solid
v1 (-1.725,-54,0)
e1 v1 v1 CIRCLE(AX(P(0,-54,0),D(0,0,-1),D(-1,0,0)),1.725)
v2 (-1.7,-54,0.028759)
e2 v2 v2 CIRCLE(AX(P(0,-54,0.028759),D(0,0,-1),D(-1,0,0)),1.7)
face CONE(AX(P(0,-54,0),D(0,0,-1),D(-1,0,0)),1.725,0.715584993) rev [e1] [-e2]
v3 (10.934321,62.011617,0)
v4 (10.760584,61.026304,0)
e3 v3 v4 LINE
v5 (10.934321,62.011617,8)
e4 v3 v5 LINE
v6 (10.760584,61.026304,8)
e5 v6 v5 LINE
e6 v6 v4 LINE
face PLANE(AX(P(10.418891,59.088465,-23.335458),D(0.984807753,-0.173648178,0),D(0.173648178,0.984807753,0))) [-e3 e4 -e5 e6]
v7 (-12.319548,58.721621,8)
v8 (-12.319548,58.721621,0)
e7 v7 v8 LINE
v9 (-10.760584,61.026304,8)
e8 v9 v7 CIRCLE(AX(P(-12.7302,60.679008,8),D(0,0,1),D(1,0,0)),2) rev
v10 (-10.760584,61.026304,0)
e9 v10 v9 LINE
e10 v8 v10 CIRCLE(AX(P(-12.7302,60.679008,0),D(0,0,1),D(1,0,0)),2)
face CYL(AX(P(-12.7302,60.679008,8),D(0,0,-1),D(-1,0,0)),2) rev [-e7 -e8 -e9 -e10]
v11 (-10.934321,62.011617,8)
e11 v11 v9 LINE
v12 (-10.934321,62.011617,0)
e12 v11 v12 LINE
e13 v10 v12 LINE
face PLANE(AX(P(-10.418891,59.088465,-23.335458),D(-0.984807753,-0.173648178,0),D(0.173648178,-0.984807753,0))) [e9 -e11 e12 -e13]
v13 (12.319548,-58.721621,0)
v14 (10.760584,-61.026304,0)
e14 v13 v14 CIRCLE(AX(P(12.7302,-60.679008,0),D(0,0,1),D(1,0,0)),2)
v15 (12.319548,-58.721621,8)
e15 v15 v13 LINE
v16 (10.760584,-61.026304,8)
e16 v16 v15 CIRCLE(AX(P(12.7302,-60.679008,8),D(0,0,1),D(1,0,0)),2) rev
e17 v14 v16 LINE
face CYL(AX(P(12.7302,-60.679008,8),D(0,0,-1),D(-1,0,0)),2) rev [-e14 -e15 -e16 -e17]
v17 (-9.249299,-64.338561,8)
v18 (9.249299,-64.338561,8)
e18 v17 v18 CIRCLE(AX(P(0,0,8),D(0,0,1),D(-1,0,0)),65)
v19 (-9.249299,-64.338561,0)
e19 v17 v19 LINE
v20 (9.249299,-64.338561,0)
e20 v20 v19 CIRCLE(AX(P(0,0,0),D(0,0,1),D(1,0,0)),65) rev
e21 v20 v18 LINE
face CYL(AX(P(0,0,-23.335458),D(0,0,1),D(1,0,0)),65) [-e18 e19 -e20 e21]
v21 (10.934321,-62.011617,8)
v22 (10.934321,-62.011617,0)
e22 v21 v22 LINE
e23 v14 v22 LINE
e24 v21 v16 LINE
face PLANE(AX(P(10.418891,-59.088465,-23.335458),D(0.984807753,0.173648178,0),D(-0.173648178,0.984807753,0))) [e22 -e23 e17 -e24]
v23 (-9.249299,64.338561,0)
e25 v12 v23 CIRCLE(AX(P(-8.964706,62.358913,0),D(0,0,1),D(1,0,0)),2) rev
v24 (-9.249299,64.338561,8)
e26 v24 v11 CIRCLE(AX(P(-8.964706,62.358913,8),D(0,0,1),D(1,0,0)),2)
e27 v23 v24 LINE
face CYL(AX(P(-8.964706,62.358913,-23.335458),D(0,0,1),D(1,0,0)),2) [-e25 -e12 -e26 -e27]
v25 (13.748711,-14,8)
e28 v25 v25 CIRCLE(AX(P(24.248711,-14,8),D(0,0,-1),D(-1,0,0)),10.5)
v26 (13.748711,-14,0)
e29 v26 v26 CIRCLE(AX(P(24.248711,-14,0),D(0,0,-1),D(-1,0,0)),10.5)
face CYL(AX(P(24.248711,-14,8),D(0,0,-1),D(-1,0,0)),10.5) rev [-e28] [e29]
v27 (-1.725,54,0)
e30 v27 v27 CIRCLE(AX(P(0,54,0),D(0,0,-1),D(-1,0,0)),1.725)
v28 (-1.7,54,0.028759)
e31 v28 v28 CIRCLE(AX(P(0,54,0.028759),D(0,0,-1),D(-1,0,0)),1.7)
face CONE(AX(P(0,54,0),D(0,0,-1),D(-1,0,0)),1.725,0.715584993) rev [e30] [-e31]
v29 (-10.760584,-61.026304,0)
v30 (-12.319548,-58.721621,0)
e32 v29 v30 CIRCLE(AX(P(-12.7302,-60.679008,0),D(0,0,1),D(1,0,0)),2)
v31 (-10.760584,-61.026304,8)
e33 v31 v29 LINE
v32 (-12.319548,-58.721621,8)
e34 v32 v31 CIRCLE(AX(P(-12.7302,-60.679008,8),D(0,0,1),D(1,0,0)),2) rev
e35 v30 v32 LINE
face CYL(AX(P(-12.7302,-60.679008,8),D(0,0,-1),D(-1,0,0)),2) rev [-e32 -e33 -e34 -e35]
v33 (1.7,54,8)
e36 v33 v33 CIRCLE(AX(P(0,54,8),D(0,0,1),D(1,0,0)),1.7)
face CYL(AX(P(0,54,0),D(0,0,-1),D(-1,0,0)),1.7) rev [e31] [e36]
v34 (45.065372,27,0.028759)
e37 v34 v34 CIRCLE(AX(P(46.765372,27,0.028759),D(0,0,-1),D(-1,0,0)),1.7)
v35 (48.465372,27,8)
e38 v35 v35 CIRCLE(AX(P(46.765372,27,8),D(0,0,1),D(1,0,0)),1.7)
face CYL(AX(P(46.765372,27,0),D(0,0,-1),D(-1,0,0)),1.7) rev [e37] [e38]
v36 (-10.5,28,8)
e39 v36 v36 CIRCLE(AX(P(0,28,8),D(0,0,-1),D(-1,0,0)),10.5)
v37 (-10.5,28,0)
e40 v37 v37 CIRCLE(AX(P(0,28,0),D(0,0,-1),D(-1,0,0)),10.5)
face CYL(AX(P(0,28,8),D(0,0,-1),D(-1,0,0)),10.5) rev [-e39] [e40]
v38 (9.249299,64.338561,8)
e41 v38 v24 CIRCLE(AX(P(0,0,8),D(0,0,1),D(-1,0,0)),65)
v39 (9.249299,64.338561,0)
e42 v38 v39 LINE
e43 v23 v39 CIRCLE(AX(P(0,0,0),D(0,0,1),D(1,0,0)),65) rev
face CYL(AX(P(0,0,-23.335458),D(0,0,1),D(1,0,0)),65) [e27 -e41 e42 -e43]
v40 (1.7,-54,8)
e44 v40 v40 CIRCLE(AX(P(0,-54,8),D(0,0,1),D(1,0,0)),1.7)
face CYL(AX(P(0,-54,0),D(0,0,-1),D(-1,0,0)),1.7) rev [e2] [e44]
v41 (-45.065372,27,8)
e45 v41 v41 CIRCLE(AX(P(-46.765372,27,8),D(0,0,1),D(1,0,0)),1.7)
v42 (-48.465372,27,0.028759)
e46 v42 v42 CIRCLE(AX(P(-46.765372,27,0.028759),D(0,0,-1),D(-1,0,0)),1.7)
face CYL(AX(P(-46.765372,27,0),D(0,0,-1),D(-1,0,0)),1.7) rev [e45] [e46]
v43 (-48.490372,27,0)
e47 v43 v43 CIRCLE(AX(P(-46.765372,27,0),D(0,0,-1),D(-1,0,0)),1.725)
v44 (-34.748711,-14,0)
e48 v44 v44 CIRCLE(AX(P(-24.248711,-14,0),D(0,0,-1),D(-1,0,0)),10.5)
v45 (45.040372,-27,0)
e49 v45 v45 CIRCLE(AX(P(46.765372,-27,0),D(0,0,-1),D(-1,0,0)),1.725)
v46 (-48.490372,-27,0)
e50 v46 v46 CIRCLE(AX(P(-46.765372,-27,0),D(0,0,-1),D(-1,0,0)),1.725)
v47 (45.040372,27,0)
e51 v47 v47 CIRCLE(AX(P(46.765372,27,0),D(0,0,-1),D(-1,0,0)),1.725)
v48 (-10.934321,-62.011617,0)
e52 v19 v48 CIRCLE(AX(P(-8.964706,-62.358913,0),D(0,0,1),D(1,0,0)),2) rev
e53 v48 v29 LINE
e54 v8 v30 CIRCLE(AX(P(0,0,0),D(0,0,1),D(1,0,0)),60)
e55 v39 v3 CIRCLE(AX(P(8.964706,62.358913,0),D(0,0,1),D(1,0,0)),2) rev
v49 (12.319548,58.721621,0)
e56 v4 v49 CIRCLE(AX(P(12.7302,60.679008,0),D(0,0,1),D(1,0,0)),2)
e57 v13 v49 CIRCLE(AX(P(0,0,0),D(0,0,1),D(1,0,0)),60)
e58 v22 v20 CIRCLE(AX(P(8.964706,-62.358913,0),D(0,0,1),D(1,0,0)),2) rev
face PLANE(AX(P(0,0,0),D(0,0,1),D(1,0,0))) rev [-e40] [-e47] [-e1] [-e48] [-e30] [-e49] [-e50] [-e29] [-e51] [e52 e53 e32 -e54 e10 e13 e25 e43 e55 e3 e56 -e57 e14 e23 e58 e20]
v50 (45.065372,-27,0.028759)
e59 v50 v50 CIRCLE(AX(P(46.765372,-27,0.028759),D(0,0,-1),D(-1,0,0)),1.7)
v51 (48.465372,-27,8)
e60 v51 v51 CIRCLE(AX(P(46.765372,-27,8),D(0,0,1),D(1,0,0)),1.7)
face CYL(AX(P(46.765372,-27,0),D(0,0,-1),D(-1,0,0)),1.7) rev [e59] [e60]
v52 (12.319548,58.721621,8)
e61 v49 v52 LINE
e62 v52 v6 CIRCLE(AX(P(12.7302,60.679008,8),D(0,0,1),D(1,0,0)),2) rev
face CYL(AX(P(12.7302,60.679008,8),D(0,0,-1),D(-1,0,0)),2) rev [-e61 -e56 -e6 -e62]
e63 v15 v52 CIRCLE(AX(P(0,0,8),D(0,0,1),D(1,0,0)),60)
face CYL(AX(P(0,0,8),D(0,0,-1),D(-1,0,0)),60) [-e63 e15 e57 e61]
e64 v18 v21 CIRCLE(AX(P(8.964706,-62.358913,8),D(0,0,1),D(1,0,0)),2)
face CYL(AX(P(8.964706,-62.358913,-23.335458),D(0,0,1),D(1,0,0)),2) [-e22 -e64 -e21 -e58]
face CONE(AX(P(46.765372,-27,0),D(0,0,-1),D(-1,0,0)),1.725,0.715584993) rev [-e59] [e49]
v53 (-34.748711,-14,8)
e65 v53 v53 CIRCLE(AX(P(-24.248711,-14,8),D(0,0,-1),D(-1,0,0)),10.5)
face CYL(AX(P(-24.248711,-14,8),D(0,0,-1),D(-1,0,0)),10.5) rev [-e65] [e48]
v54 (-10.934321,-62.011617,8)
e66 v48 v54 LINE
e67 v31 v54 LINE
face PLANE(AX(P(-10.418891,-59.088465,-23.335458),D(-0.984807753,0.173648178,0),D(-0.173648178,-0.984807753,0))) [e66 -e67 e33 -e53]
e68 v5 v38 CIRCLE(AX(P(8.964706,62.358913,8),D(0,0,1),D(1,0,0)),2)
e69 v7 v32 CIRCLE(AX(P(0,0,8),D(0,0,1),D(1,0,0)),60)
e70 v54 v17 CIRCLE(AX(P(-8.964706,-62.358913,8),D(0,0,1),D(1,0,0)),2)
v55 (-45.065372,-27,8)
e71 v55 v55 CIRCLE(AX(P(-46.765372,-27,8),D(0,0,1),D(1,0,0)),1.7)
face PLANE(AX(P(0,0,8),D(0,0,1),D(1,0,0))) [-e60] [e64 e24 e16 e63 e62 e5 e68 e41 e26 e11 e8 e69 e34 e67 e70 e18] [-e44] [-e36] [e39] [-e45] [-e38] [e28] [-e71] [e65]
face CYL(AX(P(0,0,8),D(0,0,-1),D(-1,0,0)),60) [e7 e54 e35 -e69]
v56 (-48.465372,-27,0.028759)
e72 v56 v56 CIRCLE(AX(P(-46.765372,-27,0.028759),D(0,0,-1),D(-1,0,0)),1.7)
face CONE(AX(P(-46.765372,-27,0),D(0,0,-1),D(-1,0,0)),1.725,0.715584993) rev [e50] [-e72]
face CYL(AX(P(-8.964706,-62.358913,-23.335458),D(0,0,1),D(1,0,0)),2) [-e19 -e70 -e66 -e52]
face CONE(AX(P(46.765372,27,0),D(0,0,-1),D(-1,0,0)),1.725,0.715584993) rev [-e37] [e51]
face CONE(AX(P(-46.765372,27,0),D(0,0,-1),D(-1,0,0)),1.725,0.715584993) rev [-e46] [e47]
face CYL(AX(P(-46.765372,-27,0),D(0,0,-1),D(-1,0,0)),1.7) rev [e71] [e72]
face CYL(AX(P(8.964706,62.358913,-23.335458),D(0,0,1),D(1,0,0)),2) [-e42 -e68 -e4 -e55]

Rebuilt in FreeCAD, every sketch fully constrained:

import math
import FreeCAD as App
import Part
import Sketcher
from FreeCAD import Vector
Q = App.Units.Quantity


def edges_at(feature, points):
    """Names of the edges that pass closest to the given points."""
    edges = feature.Shape.Edges
    near = lambda p: min(range(len(edges)), key=lambda i: edges[i].distToShape(Part.Vertex(*p))[0])
    return sorted({f"Edge{near(p) + 1}" for p in points})

doc = App.newDocument("Part")
body = doc.addObject("PartDesign::Body", "Body")

sketch1 = body.newObject("Sketcher::SketchObject", "Sketch")
sketch1.AttachmentSupport = (doc.getObject("XY_Plane"), [""])
sketch1.MapMode = "FlatFace"
sketch1.addGeometry(Part.Circle(Vector(0, 0, 0), Vector(0, 0, 1), 60), False)
sketch1.addConstraint([
    Sketcher.Constraint("Coincident", 0, 3, -1, 1),
    Sketcher.Constraint("Diameter", 0, 120.0),
])
pad1 = body.newObject("PartDesign::Pad", "Pad")
pad1.Profile = sketch1
pad1.Length = 8

sketch2 = body.newObject("Sketcher::SketchObject", "Sketch001")
sketch2.AttachmentSupport = (doc.getObject("XY_Plane"), [""])
sketch2.MapMode = "FlatFace"
sketch2.addGeometry([
    Part.LineSegment(Vector(10.4, 59.1, 0), Vector(11.3, 64, 0)),
    Part.ArcOfCircle(Part.Circle(Vector(0, 0, 0), Vector(0, 0, 1), 65), math.radians(80), math.radians(100)),
    Part.LineSegment(Vector(-11.3, 64, 0), Vector(-10.4, 59.1, 0)),
    Part.ArcOfCircle(Part.Circle(Vector(0, 0, 0), Vector(0, 0, 1), 60), math.radians(80), math.radians(100)),
    Part.LineSegment(Vector(11.3, -64, 0), Vector(10.4, -59.1, 0)),
    Part.ArcOfCircle(Part.Circle(Vector(0, 0, 0), Vector(0, 0, 1), 60), math.radians(-100), math.radians(-80)),
    Part.LineSegment(Vector(-10.4, -59.1, 0), Vector(-11.3, -64, 0)),
    Part.ArcOfCircle(Part.Circle(Vector(0, 0, 0), Vector(0, 0, 1), 65), math.radians(-100), math.radians(-80)),
], False)
sketch2.addConstraint([
    Sketcher.Constraint("Coincident", 0, 2, 1, 1),
    Sketcher.Constraint("Coincident", 1, 2, 2, 1),
    Sketcher.Constraint("Coincident", 2, 2, 3, 2),
    Sketcher.Constraint("Coincident", 3, 1, 0, 1),
    Sketcher.Constraint("Coincident", 4, 2, 5, 2),
    Sketcher.Constraint("Coincident", 5, 1, 6, 1),
    Sketcher.Constraint("Coincident", 6, 2, 7, 1),
    Sketcher.Constraint("Coincident", 7, 2, 4, 1),
    Sketcher.Constraint("Coincident", 1, 3, -1, 1),
    Sketcher.Constraint("Coincident", 3, 3, -1, 1),
    Sketcher.Constraint("Coincident", 5, 3, -1, 1),
    Sketcher.Constraint("Coincident", 7, 3, -1, 1),
    Sketcher.Constraint("Equal", 3, 5),
    Sketcher.Constraint("Equal", 1, 7),
    Sketcher.Constraint("Parallel", 2, 4),
    Sketcher.Constraint("Parallel", 0, 6),
    Sketcher.Constraint("Horizontal", 0, 2, 1, 2),
    Sketcher.Constraint("Horizontal", 2, 2, 3, 1),
    Sketcher.Constraint("Horizontal", 4, 2, 5, 1),
    Sketcher.Constraint("Vertical", 3, 1, 4, 2),
    Sketcher.Constraint("Radius", 1, 65.0),
    Sketcher.Constraint("Radius", 3, 60.0),
    Sketcher.Constraint("Angle", 0, Q("80 deg")),
    Sketcher.Constraint("DistanceX", -1, 1, 0, 2, 11.287132),
])
pad2 = body.newObject("PartDesign::Pad", "Pad001")
pad2.Profile = sketch2
pad2.Length = 8
doc.recompute()

fillet = body.newObject("PartDesign::Fillet", "Fillet")
fillet.Base = (pad2, edges_at(pad2, [
    (-10.419, -59.088, 4),
    (10.419, -59.088, 4),
    (11.287, -64.013, 4),
    (-11.287, -64.013, 4),
    (10.419, 59.088, 4),
    (-10.419, 59.088, 4),
    (-11.287, 64.013, 4),
    (11.287, 64.013, 4),
]))
fillet.Radius = 2

sketch3 = body.newObject("Sketcher::SketchObject", "Sketch002")
sketch3.AttachmentSupport = (doc.getObject("XY_Plane"), [""])
sketch3.MapMode = "FlatFace"
sketch3.addGeometry([
    Part.Circle(Vector(0, 54, 0), Vector(0, 0, 1), 1.7),
    Part.Circle(Vector(-46.8, 27, 0), Vector(0, 0, 1), 1.7),
    Part.Circle(Vector(-46.8, -27, 0), Vector(0, 0, 1), 1.7),
    Part.Circle(Vector(0, -54, 0), Vector(0, 0, 1), 1.7),
    Part.Circle(Vector(46.8, -27, 0), Vector(0, 0, 1), 1.7),
    Part.Circle(Vector(46.8, 27, 0), Vector(0, 0, 1), 1.7),
], False)
sketch3.addConstraint([
    Sketcher.Constraint("Equal", 0, 1),
    Sketcher.Constraint("Equal", 1, 2),
    Sketcher.Constraint("Equal", 2, 3),
    Sketcher.Constraint("Equal", 3, 4),
    Sketcher.Constraint("Equal", 4, 5),
    Sketcher.Constraint("Symmetric", 0, 3, 3, 3, -1, 1),
    Sketcher.Constraint("Symmetric", 1, 3, 4, 3, -1, 1),
    Sketcher.Constraint("Symmetric", 2, 3, 5, 3, -1, 1),
    Sketcher.Constraint("Symmetric", 2, 3, 4, 3, -2),
    Sketcher.Constraint("PointOnObject", 0, 3, -2),
    Sketcher.Constraint("Diameter", 0, 3.4),
    Sketcher.Constraint("DistanceY", -1, 1, 0, 3, 54.0),
    Sketcher.Constraint("DistanceY", -1, 1, 1, 3, 27.0),
    Sketcher.Constraint("DistanceX", 1, 3, -1, 1, 46.765372),
])
doc.recompute()
hole = body.newObject("PartDesign::Hole", "Hole")
hole.Profile = sketch3
hole.ThreadType = "None"
hole.Diameter = 3.4
hole.DepthType = "ThroughAll"
hole.HoleCutType = "Countersink"
hole.HoleCutDiameter = 3.45
hole.HoleCutCountersinkAngle = 82
hole.Reversed = True

sketch4 = body.newObject("Sketcher::SketchObject", "Sketch003")
sketch4.AttachmentSupport = (doc.getObject("XY_Plane"), [""])
sketch4.MapMode = "FlatFace"
sketch4.addGeometry([
    Part.Circle(Vector(0, 28, 0), Vector(0, 0, 1), 10),
    Part.Circle(Vector(-24, -14, 0), Vector(0, 0, 1), 10),
    Part.Circle(Vector(24, -14, 0), Vector(0, 0, 1), 10),
], False)
sketch4.addConstraint([
    Sketcher.Constraint("Equal", 0, 1),
    Sketcher.Constraint("Equal", 1, 2),
    Sketcher.Constraint("Symmetric", 1, 3, 2, 3, -2),
    Sketcher.Constraint("PointOnObject", 0, 3, -2),
    Sketcher.Constraint("Diameter", 0, 21.0),
    Sketcher.Constraint("DistanceY", -1, 1, 0, 3, 28.0),
    Sketcher.Constraint("DistanceY", 1, 3, -1, 1, 14.0),
    Sketcher.Constraint("DistanceX", 1, 3, -1, 1, 24.248711),
])
pocket1 = body.newObject("PartDesign::Pocket", "Pocket")
pocket1.Profile = sketch4
pocket1.Type = "ThroughAll"
pocket1.Reversed = True

doc.recompute()
